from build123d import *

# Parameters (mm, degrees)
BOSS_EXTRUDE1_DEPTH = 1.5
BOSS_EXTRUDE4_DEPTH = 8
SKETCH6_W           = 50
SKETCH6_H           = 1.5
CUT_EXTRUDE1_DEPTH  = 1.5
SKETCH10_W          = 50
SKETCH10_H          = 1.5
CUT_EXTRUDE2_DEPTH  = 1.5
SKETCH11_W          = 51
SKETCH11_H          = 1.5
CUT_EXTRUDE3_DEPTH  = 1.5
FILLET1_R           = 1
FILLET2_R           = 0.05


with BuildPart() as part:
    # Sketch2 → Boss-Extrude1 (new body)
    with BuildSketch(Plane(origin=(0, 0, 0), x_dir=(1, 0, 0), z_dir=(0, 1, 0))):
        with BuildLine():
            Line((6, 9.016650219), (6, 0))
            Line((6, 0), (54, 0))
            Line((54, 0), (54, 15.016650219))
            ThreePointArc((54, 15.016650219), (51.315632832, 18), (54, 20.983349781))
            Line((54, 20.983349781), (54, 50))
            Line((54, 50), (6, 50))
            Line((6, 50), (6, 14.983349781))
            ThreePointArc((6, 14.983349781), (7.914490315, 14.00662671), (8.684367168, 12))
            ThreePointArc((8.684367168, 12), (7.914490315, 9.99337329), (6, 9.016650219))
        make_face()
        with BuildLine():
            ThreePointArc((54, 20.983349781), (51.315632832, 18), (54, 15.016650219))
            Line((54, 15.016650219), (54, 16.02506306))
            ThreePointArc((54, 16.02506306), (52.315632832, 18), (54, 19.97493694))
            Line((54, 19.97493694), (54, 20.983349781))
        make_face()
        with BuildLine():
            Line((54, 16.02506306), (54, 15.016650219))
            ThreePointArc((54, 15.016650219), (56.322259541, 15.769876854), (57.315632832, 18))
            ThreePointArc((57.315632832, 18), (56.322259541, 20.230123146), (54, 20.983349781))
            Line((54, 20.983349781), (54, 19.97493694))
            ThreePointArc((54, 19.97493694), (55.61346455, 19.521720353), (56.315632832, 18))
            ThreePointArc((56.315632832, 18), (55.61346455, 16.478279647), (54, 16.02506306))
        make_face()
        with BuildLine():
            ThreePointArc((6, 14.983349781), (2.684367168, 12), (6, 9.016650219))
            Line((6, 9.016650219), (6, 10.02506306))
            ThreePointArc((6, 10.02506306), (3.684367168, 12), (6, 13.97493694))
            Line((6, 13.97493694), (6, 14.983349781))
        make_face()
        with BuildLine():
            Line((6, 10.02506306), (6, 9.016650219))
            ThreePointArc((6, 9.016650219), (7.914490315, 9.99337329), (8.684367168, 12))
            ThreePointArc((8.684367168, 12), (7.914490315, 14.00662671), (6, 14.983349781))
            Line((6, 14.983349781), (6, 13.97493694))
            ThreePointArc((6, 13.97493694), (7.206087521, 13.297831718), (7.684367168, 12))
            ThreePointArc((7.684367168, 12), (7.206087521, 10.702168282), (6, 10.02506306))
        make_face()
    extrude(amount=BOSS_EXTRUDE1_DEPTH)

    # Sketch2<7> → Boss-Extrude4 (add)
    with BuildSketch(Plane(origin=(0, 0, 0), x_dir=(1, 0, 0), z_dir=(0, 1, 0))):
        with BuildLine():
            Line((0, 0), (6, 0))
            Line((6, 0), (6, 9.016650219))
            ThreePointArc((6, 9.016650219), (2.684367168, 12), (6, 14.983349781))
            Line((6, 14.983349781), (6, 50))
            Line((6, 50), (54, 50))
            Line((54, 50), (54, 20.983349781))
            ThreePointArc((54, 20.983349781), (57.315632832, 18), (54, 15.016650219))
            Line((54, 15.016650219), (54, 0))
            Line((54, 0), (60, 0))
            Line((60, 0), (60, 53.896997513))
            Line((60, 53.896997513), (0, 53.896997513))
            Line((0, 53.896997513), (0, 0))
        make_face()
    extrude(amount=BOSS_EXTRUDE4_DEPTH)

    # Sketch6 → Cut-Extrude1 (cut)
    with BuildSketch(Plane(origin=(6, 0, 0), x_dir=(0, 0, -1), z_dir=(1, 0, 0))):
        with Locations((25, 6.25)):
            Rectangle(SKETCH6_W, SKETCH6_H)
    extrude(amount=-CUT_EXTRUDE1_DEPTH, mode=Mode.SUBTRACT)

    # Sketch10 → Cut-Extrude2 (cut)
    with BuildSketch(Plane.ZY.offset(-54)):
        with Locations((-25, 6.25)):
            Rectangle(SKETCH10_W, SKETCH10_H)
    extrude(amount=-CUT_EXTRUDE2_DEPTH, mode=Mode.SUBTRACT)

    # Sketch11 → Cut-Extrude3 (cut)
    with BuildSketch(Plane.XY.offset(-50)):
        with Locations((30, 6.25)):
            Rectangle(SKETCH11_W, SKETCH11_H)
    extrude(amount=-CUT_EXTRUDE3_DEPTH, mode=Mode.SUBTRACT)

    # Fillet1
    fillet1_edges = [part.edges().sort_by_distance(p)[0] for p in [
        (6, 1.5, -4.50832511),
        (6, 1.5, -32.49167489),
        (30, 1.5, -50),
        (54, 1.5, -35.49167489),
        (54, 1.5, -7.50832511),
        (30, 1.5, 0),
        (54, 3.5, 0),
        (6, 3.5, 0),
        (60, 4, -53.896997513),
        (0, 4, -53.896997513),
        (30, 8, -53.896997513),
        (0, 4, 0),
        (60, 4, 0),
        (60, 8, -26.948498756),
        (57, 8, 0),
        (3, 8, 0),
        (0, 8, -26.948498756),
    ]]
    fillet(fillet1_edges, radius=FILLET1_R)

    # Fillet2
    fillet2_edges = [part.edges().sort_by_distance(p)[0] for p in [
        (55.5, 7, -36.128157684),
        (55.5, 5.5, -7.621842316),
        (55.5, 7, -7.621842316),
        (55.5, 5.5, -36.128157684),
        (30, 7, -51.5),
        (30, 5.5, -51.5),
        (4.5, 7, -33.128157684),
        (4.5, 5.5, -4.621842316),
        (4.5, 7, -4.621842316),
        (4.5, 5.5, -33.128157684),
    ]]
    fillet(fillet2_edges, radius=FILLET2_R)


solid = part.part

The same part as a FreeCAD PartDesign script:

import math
import FreeCAD as App
import Part
import Sketcher
from FreeCAD import Vector
Q = App.Units.Quantity


def edges_at(feature, points):
    """Names of the edges that pass closest to the given points."""
    edges = feature.Shape.Edges
    near = lambda p: min(range(len(edges)), key=lambda i: edges[i].distToShape(Part.Vertex(*p))[0])
    return sorted({f"Edge{near(p) + 1}" for p in points})

doc = App.newDocument("Part")
body = doc.addObject("PartDesign::Body", "Body")

# Sketch on XZ plane
sketch1 = body.newObject("Sketcher::SketchObject", "Sketch")
sketch1.AttachmentSupport = (doc.getObject("XZ_Plane"), [""])
sketch1.MapMode = "FlatFace"
sketch1.addGeometry(Part.ArcOfCircle(Part.Circle(Vector(5.7, -12, 0), Vector(0, 0, 1), 3), math.radians(84), math.radians(276)), False)
sketch1.addGeometry(Part.LineSegment(Vector(6, -9, 0), Vector(6, 0, 0)), False)
sketch1.addGeometry(Part.LineSegment(Vector(6, 0, 0), Vector(54, 0, 0)), False)
sketch1.addGeometry(Part.LineSegment(Vector(54, 0, 0), Vector(54, -15, 0)), False)
sketch1.addGeometry(Part.ArcOfCircle(Part.Circle(Vector(54.3, -18, 0), Vector(0, 0, 1), 3), math.radians(0), math.radians(96)), False)
sketch1.addGeometry(Part.ArcOfCircle(Part.Circle(Vector(54.3, -18, 0), Vector(0, 0, 1), 3), math.radians(-96), math.radians(0)), False)
sketch1.addGeometry(Part.LineSegment(Vector(54, -21, 0), Vector(54, -50, 0)), False)
sketch1.addGeometry(Part.LineSegment(Vector(54, -50, 0), Vector(6, -50, 0)), False)
sketch1.addGeometry(Part.LineSegment(Vector(6, -50, 0), Vector(6, -15, 0)), False)
sketch1.addGeometry(Part.ArcOfCircle(Part.Circle(Vector(5.7, -12, 0), Vector(0, 0, 1), 2), math.radians(-81), math.radians(0)), False)
sketch1.addGeometry(Part.ArcOfCircle(Part.Circle(Vector(5.7, -12, 0), Vector(0, 0, 1), 2), math.radians(0), math.radians(81)), False)
sketch1.addGeometry(Part.ArcOfCircle(Part.Circle(Vector(5.7, -12, 0), Vector(0, 0, 1), 2), math.radians(81), math.radians(279)), False)
sketch1.addGeometry(Part.ArcOfCircle(Part.Circle(Vector(54.3, -18, 0), Vector(0, 0, 1), 2), math.radians(0), math.radians(99)), False)
sketch1.addGeometry(Part.ArcOfCircle(Part.Circle(Vector(54.3, -18, 0), Vector(0, 0, 1), 2), math.radians(99), math.radians(261)), False)
sketch1.addGeometry(Part.ArcOfCircle(Part.Circle(Vector(54.3, -18, 0), Vector(0, 0, 1), 2), math.radians(-99), math.radians(0)), False)
sketch1.addConstraint(Sketcher.Constraint("Coincident", 0, 1, 1, 1))
sketch1.addConstraint(Sketcher.Constraint("Coincident", 1, 2, 2, 1))
sketch1.addConstraint(Sketcher.Constraint("Coincident", 2, 2, 3, 1))
sketch1.addConstraint(Sketcher.Constraint("Coincident", 3, 2, 4, 2))
sketch1.addConstraint(Sketcher.Constraint("Tangent", 4, 1, 5, 2))
sketch1.addConstraint(Sketcher.Constraint("Coincident", 5, 1, 6, 1))
sketch1.addConstraint(Sketcher.Constraint("Coincident", 6, 2, 7, 1))
sketch1.addConstraint(Sketcher.Constraint("Coincident", 7, 2, 8, 1))
sketch1.addConstraint(Sketcher.Constraint("Coincident", 8, 2, 0, 2))
sketch1.addConstraint(Sketcher.Constraint("Tangent", 9, 2, 10, 1))
sketch1.addConstraint(Sketcher.Constraint("Tangent", 10, 2, 11, 1))
sketch1.addConstraint(Sketcher.Constraint("Tangent", 11, 2, 9, 1))
sketch1.addConstraint(Sketcher.Constraint("Tangent", 12, 2, 13, 1))
sketch1.addConstraint(Sketcher.Constraint("Tangent", 13, 2, 14, 1))
sketch1.addConstraint(Sketcher.Constraint("Tangent", 14, 2, 12, 1))
sketch1.addConstraint(Sketcher.Constraint("Vertical", 1))
sketch1.addConstraint(Sketcher.Constraint("Horizontal", 2))
sketch1.addConstraint(Sketcher.Constraint("Vertical", 3))
sketch1.addConstraint(Sketcher.Constraint("Vertical", 6))
sketch1.addConstraint(Sketcher.Constraint("Horizontal", 7))
sketch1.addConstraint(Sketcher.Constraint("Vertical", 8))
sketch1.addConstraint(Sketcher.Constraint("Coincident", 9, 3, 0, 3))
sketch1.addConstraint(Sketcher.Constraint("Coincident", 12, 3, 4, 3))
sketch1.addConstraint(Sketcher.Constraint("Equal", 0, 4))
sketch1.addConstraint(Sketcher.Constraint("Equal", 4, 5))
sketch1.addConstraint(Sketcher.Constraint("Equal", 11, 12))
sketch1.addConstraint(Sketcher.Constraint("PointOnObject", 1, 2, -1))
sketch1.addConstraint(Sketcher.Constraint("Horizontal", 14, 3, 4, 1))
sketch1.addConstraint(Sketcher.Constraint("Horizontal", 11, 3, 9, 2))
sketch1.addConstraint(Sketcher.Constraint("Horizontal", 4, 1, 14, 2))
sketch1.addConstraint(Sketcher.Constraint("Vertical", 3, 2, 5, 1))
sketch1.addConstraint(Sketcher.Constraint("Vertical", 1, 2, 7, 2))
sketch1.addConstraint(Sketcher.Constraint("Vertical", 8, 2, 10, 2))
sketch1.addConstraint(Sketcher.Constraint("Vertical", 10, 2, 11, 2))
sketch1.addConstraint(Sketcher.Constraint("Vertical", 6, 2, 12, 2))
sketch1.addConstraint(Sketcher.Constraint("Vertical", 12, 2, 13, 2))
sketch1.addConstraint(Sketcher.Constraint("Radius", 0, Q("3 mm")))
sketch1.addConstraint(Sketcher.Constraint("Radius", 9, Q("2 mm")))
sketch1.addConstraint(Sketcher.Constraint("DistanceX", 2, 1, 2, 2, Q("48 mm")))
sketch1.addConstraint(Sketcher.Constraint("DistanceY", 0, 3, -1, 1, Q("12 mm")))
sketch1.addConstraint(Sketcher.Constraint("DistanceY", 4, 3, -1, 1, Q("18 mm")))
sketch1.addConstraint(Sketcher.Constraint("DistanceX", -1, 1, 0, 1, Q("6 mm")))
sketch1.addConstraint(Sketcher.Constraint("DistanceY", 6, 2, -1, 1, Q("50 mm")))
sketch1.addConstraint(Sketcher.Constraint("DistanceY", 1, 1, 1, 2, Q("9.01665 mm")))
sketch1.addConstraint(Sketcher.Constraint("DistanceY", 3, 2, 3, 1, Q("15.01665 mm")))
pad1 = body.newObject("PartDesign::Pad", "Pad")
pad1.Profile = sketch1
pad1.Length = 1.5
pad1.Reversed = True

# Sketch on XZ plane
sketch2 = body.newObject("Sketcher::SketchObject", "Sketch001")
sketch2.AttachmentSupport = (doc.getObject("XZ_Plane"), [""])
sketch2.MapMode = "FlatFace"
sketch2.addGeometry(Part.LineSegment(Vector(0, 0, 0), Vector(6, 0, 0)), False)
sketch2.addGeometry(Part.LineSegment(Vector(6, 0, 0), Vector(6, -9, 0)), False)
sketch2.addGeometry(Part.ArcOfCircle(Part.Circle(Vector(5.7, -12, 0), Vector(0, 0, 1), 3), math.radians(84), math.radians(276)), False)
sketch2.addGeometry(Part.LineSegment(Vector(6, -15, 0), Vector(6, -50, 0)), False)
sketch2.addGeometry(Part.LineSegment(Vector(6, -50, 0), Vector(54, -50, 0)), False)
sketch2.addGeometry(Part.LineSegment(Vector(54, -50, 0), Vector(54, -21, 0)), False)
sketch2.addGeometry(Part.ArcOfCircle(Part.Circle(Vector(54.3, -18, 0), Vector(0, 0, 1), 3), math.radians(-96), math.radians(96)), False)
sketch2.addGeometry(Part.LineSegment(Vector(54, -15, 0), Vector(54, 0, 0)), False)
sketch2.addGeometry(Part.LineSegment(Vector(54, 0, 0), Vector(60, 0, 0)), False)
sketch2.addGeometry(Part.LineSegment(Vector(60, 0, 0), Vector(60, -53.9, 0)), False)
sketch2.addGeometry(Part.LineSegment(Vector(60, -53.9, 0), Vector(0, -53.9, 0)), False)
sketch2.addGeometry(Part.LineSegment(Vector(0, -53.9, 0), Vector(0, 0, 0)), False)
sketch2.addConstraint(Sketcher.Constraint("Coincident", 0, 2, 1, 1))
sketch2.addConstraint(Sketcher.Constraint("Coincident", 1, 2, 2, 1))
sketch2.addConstraint(Sketcher.Constraint("Coincident", 2, 2, 3, 1))
sketch2.addConstraint(Sketcher.Constraint("Coincident", 3, 2, 4, 1))
sketch2.addConstraint(Sketcher.Constraint("Coincident", 4, 2, 5, 1))
sketch2.addConstraint(Sketcher.Constraint("Coincident", 5, 2, 6, 1))
sketch2.addConstraint(Sketcher.Constraint("Coincident", 6, 2, 7, 1))
sketch2.addConstraint(Sketcher.Constraint("Coincident", 7, 2, 8, 1))
sketch2.addConstraint(Sketcher.Constraint("Coincident", 8, 2, 9, 1))
sketch2.addConstraint(Sketcher.Constraint("Coincident", 9, 2, 10, 1))
sketch2.addConstraint(Sketcher.Constraint("Coincident", 10, 2, 11, 1))
sketch2.addConstraint(Sketcher.Constraint("Coincident", 11, 2, 0, 1))
sketch2.addConstraint(Sketcher.Constraint("Horizontal", 0))
sketch2.addConstraint(Sketcher.Constraint("Vertical", 1))
sketch2.addConstraint(Sketcher.Constraint("Vertical", 3))
sketch2.addConstraint(Sketcher.Constraint("Horizontal", 4))
sketch2.addConstraint(Sketcher.Constraint("Vertical", 5))
sketch2.addConstraint(Sketcher.Constraint("Vertical", 7))
sketch2.addConstraint(Sketcher.Constraint("Horizontal", 8))
sketch2.addConstraint(Sketcher.Constraint("Vertical", 9))
sketch2.addConstraint(Sketcher.Constraint("Horizontal", 10))
sketch2.addConstraint(Sketcher.Constraint("Vertical", 11))
sketch2.addConstraint(Sketcher.Constraint("Coincident", 11, 2, -1, 1))
sketch2.addConstraint(Sketcher.Constraint("Equal", 2, 6))
sketch2.addConstraint(Sketcher.Constraint("PointOnObject", 7, 2, -1))
sketch2.addConstraint(Sketcher.Constraint("Vertical", 1, 2, 2, 2))
sketch2.addConstraint(Sketcher.Constraint("Vertical", 5, 2, 6, 2))
sketch2.addConstraint(Sketcher.Constraint("Equal", 0, 8))
sketch2.addConstraint(Sketcher.Constraint("Radius", 2, Q("3 mm")))
sketch2.addConstraint(Sketcher.Constraint("DistanceX", 0, 1, 0, 2, Q("6 mm")))
sketch2.addConstraint(Sketcher.Constraint("DistanceX", 4, 1, 4, 2, Q("48 mm")))
sketch2.addConstraint(Sketcher.Constraint("DistanceY", 2, 3, -1, 1, Q("12 mm")))
sketch2.addConstraint(Sketcher.Constraint("DistanceY", 6, 3, -1, 1, Q("18 mm")))
sketch2.addConstraint(Sketcher.Constraint("DistanceY", 3, 2, -1, 1, Q("50 mm")))
sketch2.addConstraint(Sketcher.Constraint("DistanceY", 5, 2, 2, 2, Q("6 mm")))
sketch2.addConstraint(Sketcher.Constraint("DistanceY", 1, 2, 1, 1, Q("9.01665 mm")))
sketch2.addConstraint(Sketcher.Constraint("DistanceY", 9, 2, 9, 1, Q("53.896998 mm")))
pad2 = body.newObject("PartDesign::Pad", "Pad001")
pad2.Profile = sketch2
pad2.Length = 8
pad2.Reversed = True

# Sketch on YZ plane
sketch3 = body.newObject("Sketcher::SketchObject", "Sketch002")
sketch3.AttachmentSupport = (doc.getObject("YZ_Plane"), [""])
sketch3.MapMode = "FlatFace"
sketch3.AttachmentOffset = App.Placement(Vector(0, 0, 6), App.Rotation())
sketch3.addGeometry(Part.LineSegment(Vector(7, 0, 0), Vector(5.5, 0, 0)), False)
sketch3.addGeometry(Part.LineSegment(Vector(5.5, 0, 0), Vector(5.5, -50, 0)), False)
sketch3.addGeometry(Part.LineSegment(Vector(5.5, -50, 0), Vector(7, -50, 0)), False)
sketch3.addGeometry(Part.LineSegment(Vector(7, -50, 0), Vector(7, 0, 0)), False)
sketch3.addConstraint(Sketcher.Constraint("Coincident", 0, 2, 1, 1))
sketch3.addConstraint(Sketcher.Constraint("Coincident", 1, 2, 2, 1))
sketch3.addConstraint(Sketcher.Constraint("Coincident", 2, 2, 3, 1))
sketch3.addConstraint(Sketcher.Constraint("Coincident", 3, 2, 0, 1))
sketch3.addConstraint(Sketcher.Constraint("Horizontal", 0))
sketch3.addConstraint(Sketcher.Constraint("Vertical", 1))
sketch3.addConstraint(Sketcher.Constraint("Horizontal", 2))
sketch3.addConstraint(Sketcher.Constraint("Vertical", 3))
sketch3.addConstraint(Sketcher.Constraint("PointOnObject", 0, 2, -1))
sketch3.addConstraint(Sketcher.Constraint("DistanceY", 1, 2, 1, 1, Q("50 mm")))
sketch3.addConstraint(Sketcher.Constraint("DistanceX", 0, 2, 0, 1, Q("1.5 mm")))
sketch3.addConstraint(Sketcher.Constraint("DistanceX", -1, 1, 2, 2, Q("7 mm")))
pocket1 = body.newObject("PartDesign::Pocket", "Pocket")
pocket1.Profile = sketch3
pocket1.Length = 1.5

# Sketch on YZ plane
sketch4 = body.newObject("Sketcher::SketchObject", "Sketch003")
sketch4.AttachmentSupport = (doc.getObject("YZ_Plane"), [""])
sketch4.MapMode = "FlatFace"
sketch4.AttachmentOffset = App.Placement(Vector(0, 0, 54), App.Rotation())
sketch4.addGeometry(Part.LineSegment(Vector(7, -50, 0), Vector(5.5, -50, 0)), False)
sketch4.addGeometry(Part.LineSegment(Vector(5.5, -50, 0), Vector(5.5, 0, 0)), False)
sketch4.addGeometry(Part.LineSegment(Vector(5.5, 0, 0), Vector(7, 0, 0)), False)
sketch4.addGeometry(Part.LineSegment(Vector(7, 0, 0), Vector(7, -50, 0)), False)
sketch4.addConstraint(Sketcher.Constraint("Coincident", 0, 2, 1, 1))
sketch4.addConstraint(Sketcher.Constraint("Coincident", 1, 2, 2, 1))
sketch4.addConstraint(Sketcher.Constraint("Coincident", 2, 2, 3, 1))
sketch4.addConstraint(Sketcher.Constraint("Coincident", 3, 2, 0, 1))
sketch4.addConstraint(Sketcher.Constraint("Horizontal", 0))
sketch4.addConstraint(Sketcher.Constraint("Vertical", 1))
sketch4.addConstraint(Sketcher.Constraint("Horizontal", 2))
sketch4.addConstraint(Sketcher.Constraint("Vertical", 3))
sketch4.addConstraint(Sketcher.Constraint("PointOnObject", 1, 2, -1))
sketch4.addConstraint(Sketcher.Constraint("DistanceY", 1, 1, 1, 2, Q("50 mm")))
sketch4.addConstraint(Sketcher.Constraint("DistanceX", 0, 2, 0, 1, Q("1.5 mm")))
sketch4.addConstraint(Sketcher.Constraint("DistanceX", -1, 1, 2, 2, Q("7 mm")))
pocket2 = body.newObject("PartDesign::Pocket", "Pocket001")
pocket2.Profile = sketch4
pocket2.Length = 1.5
pocket2.Reversed = True

# Sketch on XY plane
sketch5 = body.newObject("Sketcher::SketchObject", "Sketch004")
sketch5.AttachmentSupport = (doc.getObject("XY_Plane"), [""])
sketch5.MapMode = "FlatFace"
sketch5.AttachmentOffset = App.Placement(Vector(0, 0, -50), App.Rotation())
sketch5.addGeometry(Part.LineSegment(Vector(4.5, 7, 0), Vector(4.5, 5.5, 0)), False)
sketch5.addGeometry(Part.LineSegment(Vector(4.5, 5.5, 0), Vector(55.5, 5.5, 0)), False)
sketch5.addGeometry(Part.LineSegment(Vector(55.5, 5.5, 0), Vector(55.5, 7, 0)), False)
sketch5.addGeometry(Part.LineSegment(Vector(55.5, 7, 0), Vector(4.5, 7, 0)), False)
sketch5.addConstraint(Sketcher.Constraint("Coincident", 0, 2, 1, 1))
sketch5.addConstraint(Sketcher.Constraint("Coincident", 1, 2, 2, 1))
sketch5.addConstraint(Sketcher.Constraint("Coincident", 2, 2, 3, 1))
sketch5.addConstraint(Sketcher.Constraint("Coincident", 3, 2, 0, 1))
sketch5.addConstraint(Sketcher.Constraint("Vertical", 0))
sketch5.addConstraint(Sketcher.Constraint("Horizontal", 1))
sketch5.addConstraint(Sketcher.Constraint("Vertical", 2))
sketch5.addConstraint(Sketcher.Constraint("Horizontal", 3))
sketch5.addConstraint(Sketcher.Constraint("DistanceX", 1, 1, 1, 2, Q("51 mm")))
sketch5.addConstraint(Sketcher.Constraint("DistanceY", 0, 2, 0, 1, Q("1.5 mm")))
sketch5.addConstraint(Sketcher.Constraint("DistanceY", -1, 1, 2, 2, Q("7 mm")))
sketch5.addConstraint(Sketcher.Constraint("DistanceX", -1, 1, 0, 2, Q("4.5 mm")))
pocket3 = body.newObject("PartDesign::Pocket", "Pocket002")
pocket3.Profile = sketch5
pocket3.Length = 1.5
doc.recompute()

fillet = body.newObject("PartDesign::Fillet", "Fillet")
fillet.Base = (pocket3, edges_at(pocket3, [
    (6, 1.5, -4.508),
    (6, 1.5, -32.492),
    (30, 1.5, -50),
    (54, 1.5, -35.492),
    (54, 1.5, -7.508),
    (30, 1.5, 0),
    (54, 3.5, 0),
    (6, 3.5, 0),
    (60, 4, -53.897),
    (0, 4, -53.897),
    (30, 8, -53.897),
    (0, 4, 0),
    (60, 4, 0),
    (60, 8, -26.948),
    (57, 8, 0),
    (3, 8, 0),
    (0, 8, -26.948),
]))
fillet.Radius = 1
doc.recompute()

fillet2 = body.newObject("PartDesign::Fillet", "Fillet001")
fillet2.Base = (fillet, edges_at(fillet, [
    (55.5, 7, -36.128),
    (55.5, 5.5, -7.622),
    (55.5, 7, -7.622),
    (55.5, 5.5, -36.128),
    (30, 7, -51.5),
    (30, 5.5, -51.5),
    (4.5, 7, -33.128),
    (4.5, 5.5, -4.622),
    (4.5, 7, -4.622),
    (4.5, 5.5, -33.128),
]))
fillet2.Radius = 0.05

doc.recompute()
